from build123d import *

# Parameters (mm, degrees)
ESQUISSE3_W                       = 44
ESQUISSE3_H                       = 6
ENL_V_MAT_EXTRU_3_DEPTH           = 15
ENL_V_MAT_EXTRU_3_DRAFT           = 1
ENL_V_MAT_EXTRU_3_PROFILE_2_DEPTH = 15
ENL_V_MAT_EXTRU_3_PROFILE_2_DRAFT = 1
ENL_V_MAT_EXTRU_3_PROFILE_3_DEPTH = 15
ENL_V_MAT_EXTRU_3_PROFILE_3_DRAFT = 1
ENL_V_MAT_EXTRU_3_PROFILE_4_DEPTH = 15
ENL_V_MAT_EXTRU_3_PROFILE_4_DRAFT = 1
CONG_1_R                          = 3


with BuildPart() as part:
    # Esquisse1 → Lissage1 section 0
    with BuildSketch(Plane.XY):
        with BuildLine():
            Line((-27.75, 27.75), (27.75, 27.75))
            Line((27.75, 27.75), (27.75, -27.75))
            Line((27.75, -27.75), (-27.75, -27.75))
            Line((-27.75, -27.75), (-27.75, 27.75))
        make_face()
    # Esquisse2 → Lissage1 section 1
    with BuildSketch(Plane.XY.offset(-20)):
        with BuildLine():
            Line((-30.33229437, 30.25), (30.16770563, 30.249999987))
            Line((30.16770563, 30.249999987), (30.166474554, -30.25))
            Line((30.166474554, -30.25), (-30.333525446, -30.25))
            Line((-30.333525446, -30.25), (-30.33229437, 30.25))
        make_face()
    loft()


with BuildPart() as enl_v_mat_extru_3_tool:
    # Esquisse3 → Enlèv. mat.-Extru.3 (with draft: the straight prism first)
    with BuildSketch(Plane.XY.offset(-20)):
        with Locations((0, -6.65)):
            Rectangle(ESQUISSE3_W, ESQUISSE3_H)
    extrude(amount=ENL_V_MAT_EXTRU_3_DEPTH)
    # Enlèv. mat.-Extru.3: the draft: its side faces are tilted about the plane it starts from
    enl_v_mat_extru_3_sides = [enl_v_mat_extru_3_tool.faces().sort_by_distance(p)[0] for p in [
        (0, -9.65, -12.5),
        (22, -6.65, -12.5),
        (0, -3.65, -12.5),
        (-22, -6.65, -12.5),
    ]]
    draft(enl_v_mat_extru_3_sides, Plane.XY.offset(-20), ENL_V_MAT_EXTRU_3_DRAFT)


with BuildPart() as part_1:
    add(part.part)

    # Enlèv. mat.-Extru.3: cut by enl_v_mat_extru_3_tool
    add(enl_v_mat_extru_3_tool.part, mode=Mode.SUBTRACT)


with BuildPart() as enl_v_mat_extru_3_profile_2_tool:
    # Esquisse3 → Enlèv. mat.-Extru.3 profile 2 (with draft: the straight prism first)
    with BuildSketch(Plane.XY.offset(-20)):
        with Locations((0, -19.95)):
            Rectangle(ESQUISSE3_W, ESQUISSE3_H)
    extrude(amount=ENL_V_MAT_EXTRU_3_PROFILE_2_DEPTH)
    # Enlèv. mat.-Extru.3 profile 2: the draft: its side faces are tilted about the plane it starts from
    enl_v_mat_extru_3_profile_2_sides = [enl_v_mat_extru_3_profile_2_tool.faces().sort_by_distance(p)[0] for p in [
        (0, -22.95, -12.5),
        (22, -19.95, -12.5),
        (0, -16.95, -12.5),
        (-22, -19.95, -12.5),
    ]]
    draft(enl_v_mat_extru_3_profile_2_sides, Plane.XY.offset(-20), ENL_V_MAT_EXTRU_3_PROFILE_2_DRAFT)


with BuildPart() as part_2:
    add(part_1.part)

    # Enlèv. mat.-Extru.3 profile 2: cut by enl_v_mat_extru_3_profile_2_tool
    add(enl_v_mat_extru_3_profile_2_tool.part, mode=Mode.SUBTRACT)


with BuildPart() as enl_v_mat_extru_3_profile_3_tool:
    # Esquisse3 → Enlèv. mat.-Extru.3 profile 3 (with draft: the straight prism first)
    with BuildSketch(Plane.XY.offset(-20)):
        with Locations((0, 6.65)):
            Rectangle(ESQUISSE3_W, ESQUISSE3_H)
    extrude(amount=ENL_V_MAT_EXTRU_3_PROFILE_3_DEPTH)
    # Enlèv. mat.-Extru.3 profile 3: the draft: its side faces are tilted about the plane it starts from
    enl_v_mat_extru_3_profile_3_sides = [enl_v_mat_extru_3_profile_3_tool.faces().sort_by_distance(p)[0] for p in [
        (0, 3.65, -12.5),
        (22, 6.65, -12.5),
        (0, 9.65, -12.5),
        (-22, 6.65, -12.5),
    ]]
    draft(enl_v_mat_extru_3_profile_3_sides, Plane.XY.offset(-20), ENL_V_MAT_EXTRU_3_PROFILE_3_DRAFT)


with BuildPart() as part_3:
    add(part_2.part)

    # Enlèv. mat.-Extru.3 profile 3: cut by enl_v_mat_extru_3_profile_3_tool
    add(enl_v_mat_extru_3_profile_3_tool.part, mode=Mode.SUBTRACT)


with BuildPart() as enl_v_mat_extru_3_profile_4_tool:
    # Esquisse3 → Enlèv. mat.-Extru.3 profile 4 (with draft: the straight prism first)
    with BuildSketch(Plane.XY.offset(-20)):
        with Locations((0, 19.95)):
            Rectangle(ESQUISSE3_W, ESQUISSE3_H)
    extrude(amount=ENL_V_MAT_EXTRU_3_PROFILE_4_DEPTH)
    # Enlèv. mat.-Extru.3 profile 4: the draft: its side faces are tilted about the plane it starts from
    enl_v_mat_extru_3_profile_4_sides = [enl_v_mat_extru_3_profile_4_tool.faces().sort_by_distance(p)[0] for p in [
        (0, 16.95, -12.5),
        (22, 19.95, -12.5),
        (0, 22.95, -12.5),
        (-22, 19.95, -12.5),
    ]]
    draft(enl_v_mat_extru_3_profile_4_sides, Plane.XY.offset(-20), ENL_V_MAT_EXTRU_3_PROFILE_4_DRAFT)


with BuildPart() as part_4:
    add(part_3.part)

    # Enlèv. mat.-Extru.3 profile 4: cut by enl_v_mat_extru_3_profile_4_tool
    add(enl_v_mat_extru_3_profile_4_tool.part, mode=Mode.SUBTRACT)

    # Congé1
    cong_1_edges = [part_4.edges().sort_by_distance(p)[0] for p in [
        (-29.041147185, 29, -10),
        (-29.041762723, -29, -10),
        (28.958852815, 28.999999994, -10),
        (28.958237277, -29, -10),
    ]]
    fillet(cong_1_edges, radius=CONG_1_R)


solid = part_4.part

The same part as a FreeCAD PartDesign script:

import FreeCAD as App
import Part
import Sketcher

V = App.Vector


def edges_at(feature, points):
    """Names of the edges that pass closest to the given points."""
    edges = feature.Shape.Edges
    near = lambda p: min(range(len(edges)), key=lambda i: edges[i].distToShape(Part.Vertex(*p))[0])
    return sorted({f"Edge{near(p) + 1}" for p in points})


def faces_at(feature, points):
    """Names of the faces that lie closest to the given points."""
    faces = feature.Shape.Faces
    near = lambda p: min(range(len(faces)), key=lambda i: faces[i].distToShape(Part.Vertex(*p))[0])
    return sorted({f"Face{near(p) + 1}" for p in points})

doc = App.newDocument("Part")
params = doc.addObject("Spreadsheet::Sheet", "Params")
for row, (alias, value) in enumerate([
    ("sketch1_width", "55.5 mm"),
    ("sketch2_width", "60.5 mm"),
    ("sketch2_length", "60.5 mm"),
    ("sketch3_width", "44 mm"),
    ("sketch3_height", "6 mm"),
    ("pad1_length", "15 mm"),
    ("draft_angle", "1 deg"),
    ("sketch4_width", "44 mm"),
    ("sketch4_height", "6 mm"),
    ("pad2_length", "15 mm"),
    ("draft2_angle", "1 deg"),
    ("sketch5_width", "44 mm"),
    ("sketch5_height", "6 mm"),
    ("pad3_length", "15 mm"),
    ("draft3_angle", "1 deg"),
    ("sketch6_width", "44 mm"),
    ("sketch6_height", "6 mm"),
    ("pad4_length", "15 mm"),
    ("draft4_angle", "1 deg"),
    ("fillet_radius", "3 mm"),
], start=1):
    params.set(f"A{row}", alias)
    params.set(f"B{row}", "=" + value)
    params.setAlias(f"B{row}", alias)

body = doc.addObject("PartDesign::Body", "Body")

sketch1 = body.newObject("Sketcher::SketchObject", "Sketch")
sketch1.AttachmentSupport = (doc.getObject("XY_Plane"), [""])
sketch1.MapMode = "FlatFace"
sketch1.addGeometry([
    Part.LineSegment(V(28, 28, 0), V(-28, 28, 0)),
    Part.LineSegment(V(-28, 28, 0), V(-28, -28, 0)),
    Part.LineSegment(V(-28, -28, 0), V(28, -28, 0)),
    Part.LineSegment(V(28, -28, 0), V(28, 28, 0)),
], False)
sketch1.addConstraint([
    Sketcher.Constraint("Coincident", 0, 2, 1, 1),
    Sketcher.Constraint("Coincident", 1, 2, 2, 1),
    Sketcher.Constraint("Coincident", 2, 2, 3, 1),
    Sketcher.Constraint("Coincident", 3, 2, 0, 1),
    Sketcher.Constraint("Horizontal", 0),
    Sketcher.Constraint("Vertical", 1),
    Sketcher.Constraint("Horizontal", 2),
    Sketcher.Constraint("Vertical", 3),
    Sketcher.Constraint("Symmetric", 0, 2, 2, 2, -1, 1),
    Sketcher.Constraint("Equal", 2, 1),
    Sketcher.Constraint("DistanceX", 0, 2, 0, 1, 55.5),
])
sketch1.setExpression("Constraints[10]", "Params.sketch1_width")

sketch2 = body.newObject("Sketcher::SketchObject", "Sketch001")
sketch2.AttachmentSupport = (doc.getObject("XY_Plane"), [""])
sketch2.MapMode = "FlatFace"
sketch2.AttachmentOffset = App.Placement(V(0, 0, -20), App.Rotation())
sketch2.addGeometry([
    Part.LineSegment(V(30, 30, 0), V(-30, 30, 0)),
    Part.LineSegment(V(-30, 30, 0), V(-30, -30, 0)),
    Part.LineSegment(V(-30, -30, 0), V(30, -30, 0)),
    Part.LineSegment(V(30, -30, 0), V(30, 30, 0)),
], False)
sketch2.addConstraint([
    Sketcher.Constraint("Coincident", 0, 2, 1, 1),
    Sketcher.Constraint("Coincident", 1, 2, 2, 1),
    Sketcher.Constraint("Coincident", 2, 2, 3, 1),
    Sketcher.Constraint("Coincident", 3, 2, 0, 1),
    Sketcher.Constraint("Horizontal", 0),
    Sketcher.Constraint("Horizontal", 2),
    Sketcher.Constraint("Parallel", 1, 3),
    Sketcher.Constraint("DistanceX", 0, 2, 0, 1, 60.5),
    Sketcher.Constraint("Distance", 1, 60.5),
    Sketcher.Constraint("DistanceY", -1, 1, 0, 2, 30.25),
    Sketcher.Constraint("DistanceX", 1, 2, 0, 2, 0.001231),
    Sketcher.Constraint("DistanceX", 0, 2, -1, 1, 30.332294),
])
sketch2.setExpression("Constraints[7]", "Params.sketch2_width")
sketch2.setExpression("Constraints[8]", "Params.sketch2_length")

additiveloft = body.newObject("PartDesign::AdditiveLoft", "AdditiveLoft")
additiveloft.Profile = sketch1
additiveloft.Sections = [sketch2]
body2 = doc.addObject("PartDesign::Body", "Body001")

sketch3 = body2.newObject("Sketcher::SketchObject", "Sketch002")
sketch3.AttachmentSupport = (doc.getObject("XY_Plane001"), [""])
sketch3.MapMode = "FlatFace"
sketch3.AttachmentOffset = App.Placement(V(0, 0, -20), App.Rotation())
sketch3.addGeometry([
    Part.LineSegment(V(-22, -4, 0), V(-22, -10, 0)),
    Part.LineSegment(V(-22, -10, 0), V(22, -10, 0)),
    Part.LineSegment(V(22, -10, 0), V(22, -4, 0)),
    Part.LineSegment(V(22, -4, 0), V(-22, -4, 0)),
], False)
sketch3.addConstraint([
    Sketcher.Constraint("Coincident", 0, 2, 1, 1),
    Sketcher.Constraint("Coincident", 1, 2, 2, 1),
    Sketcher.Constraint("Coincident", 2, 2, 3, 1),
    Sketcher.Constraint("Coincident", 3, 2, 0, 1),
    Sketcher.Constraint("Vertical", 0),
    Sketcher.Constraint("Horizontal", 1),
    Sketcher.Constraint("Vertical", 2),
    Sketcher.Constraint("Horizontal", 3),
    Sketcher.Constraint("DistanceX", 1, 1, 1, 2, 44.0),
    Sketcher.Constraint("DistanceY", 0, 2, 0, 1, 6.0),
    Sketcher.Constraint("DistanceX", 0, 2, -1, 1, 22.0),
    Sketcher.Constraint("DistanceY", 0, 2, -1, 1, 9.65),
])
sketch3.setExpression("Constraints[8]", "Params.sketch3_width")
sketch3.setExpression("Constraints[9]", "Params.sketch3_height")
pad1 = body2.newObject("PartDesign::Pad", "Pad")
pad1.Profile = sketch3
pad1.setExpression("Length", "Params.pad1_length")
doc.recompute()

datumplane = body2.newObject("PartDesign::Plane", "DatumPlane")
datumplane.AttachmentSupport = (doc.getObject("XY_Plane001"), [""])
datumplane.MapMode = "FlatFace"
datumplane.AttachmentOffset = App.Placement(V(0, 0, -20), App.Rotation())
draft = body2.newObject("PartDesign::Draft", "Draft")
draft.Base = (pad1, faces_at(pad1, [
    (0, -9.65, -12.5),
    (22, -6.65, -12.5),
    (0, -3.65, -12.5),
    (-22, -6.65, -12.5),
]))
draft.NeutralPlane = (datumplane, [""])
draft.setExpression("Angle", "Params.draft_angle")
draft.Reversed = False
doc.recompute()

boolean = body.newObject("PartDesign::Boolean", "Boolean")
boolean.Type = "Cut"
boolean.addObjects([body2])
body3 = doc.addObject("PartDesign::Body", "Body002")

sketch4 = body3.newObject("Sketcher::SketchObject", "Sketch003")
sketch4.AttachmentSupport = (doc.getObject("XY_Plane002"), [""])
sketch4.MapMode = "FlatFace"
sketch4.AttachmentOffset = App.Placement(V(0, 0, -20), App.Rotation())
sketch4.addGeometry([
    Part.LineSegment(V(-22, -17, 0), V(-22, -23, 0)),
    Part.LineSegment(V(-22, -23, 0), V(22, -23, 0)),
    Part.LineSegment(V(22, -23, 0), V(22, -17, 0)),
    Part.LineSegment(V(22, -17, 0), V(-22, -17, 0)),
], False)
sketch4.addConstraint([
    Sketcher.Constraint("Coincident", 0, 2, 1, 1),
    Sketcher.Constraint("Coincident", 1, 2, 2, 1),
    Sketcher.Constraint("Coincident", 2, 2, 3, 1),
    Sketcher.Constraint("Coincident", 3, 2, 0, 1),
    Sketcher.Constraint("Vertical", 0),
    Sketcher.Constraint("Horizontal", 1),
    Sketcher.Constraint("Vertical", 2),
    Sketcher.Constraint("Horizontal", 3),
    Sketcher.Constraint("DistanceX", 1, 1, 1, 2, 44.0),
    Sketcher.Constraint("DistanceY", 0, 2, 0, 1, 6.0),
    Sketcher.Constraint("DistanceX", 0, 2, -1, 1, 22.0),
    Sketcher.Constraint("DistanceY", 0, 2, -1, 1, 22.95),
])
sketch4.setExpression("Constraints[8]", "Params.sketch4_width")
sketch4.setExpression("Constraints[9]", "Params.sketch4_height")
pad2 = body3.newObject("PartDesign::Pad", "Pad001")
pad2.Profile = sketch4
pad2.setExpression("Length", "Params.pad2_length")
doc.recompute()

datumplane2 = body3.newObject("PartDesign::Plane", "DatumPlane001")
datumplane2.AttachmentSupport = (doc.getObject("XY_Plane002"), [""])
datumplane2.MapMode = "FlatFace"
datumplane2.AttachmentOffset = App.Placement(V(0, 0, -20), App.Rotation())
draft2 = body3.newObject("PartDesign::Draft", "Draft001")
draft2.Base = (pad2, faces_at(pad2, [
    (0, -22.95, -12.5),
    (22, -19.95, -12.5),
    (0, -16.95, -12.5),
    (-22, -19.95, -12.5),
]))
draft2.NeutralPlane = (datumplane2, [""])
draft2.setExpression("Angle", "Params.draft2_angle")
draft2.Reversed = False
doc.recompute()

boolean2 = body.newObject("PartDesign::Boolean", "Boolean001")
boolean2.Type = "Cut"
boolean2.addObjects([body3])
body4 = doc.addObject("PartDesign::Body", "Body003")

sketch5 = body4.newObject("Sketcher::SketchObject", "Sketch004")
sketch5.AttachmentSupport = (doc.getObject("XY_Plane003"), [""])
sketch5.MapMode = "FlatFace"
sketch5.AttachmentOffset = App.Placement(V(0, 0, -20), App.Rotation())
sketch5.addGeometry([
    Part.LineSegment(V(-22, 10, 0), V(-22, 4, 0)),
    Part.LineSegment(V(-22, 4, 0), V(22, 4, 0)),
    Part.LineSegment(V(22, 4, 0), V(22, 10, 0)),
    Part.LineSegment(V(22, 10, 0), V(-22, 10, 0)),
], False)
sketch5.addConstraint([
    Sketcher.Constraint("Coincident", 0, 2, 1, 1),
    Sketcher.Constraint("Coincident", 1, 2, 2, 1),
    Sketcher.Constraint("Coincident", 2, 2, 3, 1),
    Sketcher.Constraint("Coincident", 3, 2, 0, 1),
    Sketcher.Constraint("Vertical", 0),
    Sketcher.Constraint("Horizontal", 1),
    Sketcher.Constraint("Vertical", 2),
    Sketcher.Constraint("Horizontal", 3),
    Sketcher.Constraint("DistanceX", 1, 1, 1, 2, 44.0),
    Sketcher.Constraint("DistanceY", 0, 2, 0, 1, 6.0),
    Sketcher.Constraint("DistanceX", 0, 2, -1, 1, 22.0),
    Sketcher.Constraint("DistanceY", -1, 1, 0, 2, 3.65),
])
sketch5.setExpression("Constraints[8]", "Params.sketch5_width")
sketch5.setExpression("Constraints[9]", "Params.sketch5_height")
pad3 = body4.newObject("PartDesign::Pad", "Pad002")
pad3.Profile = sketch5
pad3.setExpression("Length", "Params.pad3_length")
doc.recompute()

datumplane3 = body4.newObject("PartDesign::Plane", "DatumPlane002")
datumplane3.AttachmentSupport = (doc.getObject("XY_Plane003"), [""])
datumplane3.MapMode = "FlatFace"
datumplane3.AttachmentOffset = App.Placement(V(0, 0, -20), App.Rotation())
draft3 = body4.newObject("PartDesign::Draft", "Draft002")
draft3.Base = (pad3, faces_at(pad3, [
    (0, 3.65, -12.5),
    (22, 6.65, -12.5),
    (0, 9.65, -12.5),
    (-22, 6.65, -12.5),
]))
draft3.NeutralPlane = (datumplane3, [""])
draft3.setExpression("Angle", "Params.draft3_angle")
draft3.Reversed = False
doc.recompute()

boolean3 = body.newObject("PartDesign::Boolean", "Boolean002")
boolean3.Type = "Cut"
boolean3.addObjects([body4])
body5 = doc.addObject("PartDesign::Body", "Body004")

sketch6 = body5.newObject("Sketcher::SketchObject", "Sketch005")
sketch6.AttachmentSupport = (doc.getObject("XY_Plane004"), [""])
sketch6.MapMode = "FlatFace"
sketch6.AttachmentOffset = App.Placement(V(0, 0, -20), App.Rotation())
sketch6.addGeometry([
    Part.LineSegment(V(-22, 23, 0), V(-22, 17, 0)),
    Part.LineSegment(V(-22, 17, 0), V(22, 17, 0)),
    Part.LineSegment(V(22, 17, 0), V(22, 23, 0)),
    Part.LineSegment(V(22, 23, 0), V(-22, 23, 0)),
], False)
sketch6.addConstraint([
    Sketcher.Constraint("Coincident", 0, 2, 1, 1),
    Sketcher.Constraint("Coincident", 1, 2, 2, 1),
    Sketcher.Constraint("Coincident", 2, 2, 3, 1),
    Sketcher.Constraint("Coincident", 3, 2, 0, 1),
    Sketcher.Constraint("Vertical", 0),
    Sketcher.Constraint("Horizontal", 1),
    Sketcher.Constraint("Vertical", 2),
    Sketcher.Constraint("Horizontal", 3),
    Sketcher.Constraint("DistanceX", 1, 1, 1, 2, 44.0),
    Sketcher.Constraint("DistanceY", 0, 2, 0, 1, 6.0),
    Sketcher.Constraint("DistanceX", 0, 2, -1, 1, 22.0),
    Sketcher.Constraint("DistanceY", -1, 1, 0, 2, 16.95),
])
sketch6.setExpression("Constraints[8]", "Params.sketch6_width")
sketch6.setExpression("Constraints[9]", "Params.sketch6_height")
pad4 = body5.newObject("PartDesign::Pad", "Pad003")
pad4.Profile = sketch6
pad4.setExpression("Length", "Params.pad4_length")
doc.recompute()

datumplane4 = body5.newObject("PartDesign::Plane", "DatumPlane003")
datumplane4.AttachmentSupport = (doc.getObject("XY_Plane004"), [""])
datumplane4.MapMode = "FlatFace"
datumplane4.AttachmentOffset = App.Placement(V(0, 0, -20), App.Rotation())
draft4 = body5.newObject("PartDesign::Draft", "Draft003")
draft4.Base = (pad4, faces_at(pad4, [
    (0, 16.95, -12.5),
    (22, 19.95, -12.5),
    (0, 22.95, -12.5),
    (-22, 19.95, -12.5),
]))
draft4.NeutralPlane = (datumplane4, [""])
draft4.setExpression("Angle", "Params.draft4_angle")
draft4.Reversed = False
doc.recompute()

boolean4 = body.newObject("PartDesign::Boolean", "Boolean003")
boolean4.Type = "Cut"
boolean4.addObjects([body5])
doc.recompute()

fillet = body.newObject("PartDesign::Fillet", "Fillet")
fillet.Base = (boolean4, edges_at(boolean4, [
    (-29.041, 29, -10),
    (-29.042, -29, -10),
    (28.959, 29, -10),
    (28.958, -29, -10),
]))
fillet.setExpression("Radius", "Params.fillet_radius")

doc.recompute()
